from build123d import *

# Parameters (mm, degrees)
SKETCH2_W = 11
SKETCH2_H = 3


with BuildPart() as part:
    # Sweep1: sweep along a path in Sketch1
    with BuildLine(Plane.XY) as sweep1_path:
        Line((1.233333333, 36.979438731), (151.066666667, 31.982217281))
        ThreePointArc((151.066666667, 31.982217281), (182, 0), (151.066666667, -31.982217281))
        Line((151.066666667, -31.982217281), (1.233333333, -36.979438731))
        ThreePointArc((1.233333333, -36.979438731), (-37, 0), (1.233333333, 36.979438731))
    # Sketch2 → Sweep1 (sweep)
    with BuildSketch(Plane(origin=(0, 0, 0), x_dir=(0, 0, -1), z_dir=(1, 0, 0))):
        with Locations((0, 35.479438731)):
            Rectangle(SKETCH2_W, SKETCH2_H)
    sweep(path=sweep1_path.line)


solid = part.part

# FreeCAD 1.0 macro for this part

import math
import FreeCAD as App
import Part
import Sketcher

V = App.Vector
Q = App.Units.Quantity


def add_polygon(sketch, points):
    """Adds a closed chain of lines whose ends are joined by coincident constraints."""
    first, n = sketch.GeometryCount, len(points)
    for a, b in zip(points, points[1:] + points[:1]):
        sketch.addGeometry(Part.LineSegment(App.Vector(*a, 0), App.Vector(*b, 0)), False)
    for i in range(n):
        sketch.addConstraint(Sketcher.Constraint("Coincident", first + i, 2, first + (i + 1) % n, 1))

doc = App.newDocument("Part")
body = doc.addObject("PartDesign::Body", "Body")

sketch1 = body.newObject("Sketcher::SketchObject", "Sketch")
sketch1.AttachmentSupport = (doc.getObject("YZ_Plane"), [""])
sketch1.MapMode = "FlatFace"
add_polygon(sketch1, [(37, 5.5), (34, 5.5), (34, -5.5), (37, -5.5)])
sketch1.addConstraint(Sketcher.Constraint("Horizontal", 0))
sketch1.addConstraint(Sketcher.Constraint("Vertical", 1))
sketch1.addConstraint(Sketcher.Constraint("Horizontal", 2))
sketch1.addConstraint(Sketcher.Constraint("Vertical", 3))
sketch1.addConstraint(Sketcher.Constraint("DistanceX", 0, 2, 0, 1, Q("3 mm")))
sketch1.addConstraint(Sketcher.Constraint("DistanceY", 1, 2, 1, 1, Q("11 mm")))
sketch1.addConstraint(Sketcher.Constraint("DistanceY", -1, 1, 0, 2, Q("5.5 mm")))
sketch1.addConstraint(Sketcher.Constraint("DistanceX", -1, 1, 0, 2, Q("33.979439 mm")))

sketch2 = body.newObject("Sketcher::SketchObject", "Sketch001")
sketch2.AttachmentSupport = (doc.getObject("XY_Plane"), [""])
sketch2.MapMode = "FlatFace"
sketch2.addGeometry(Part.LineSegment(V(1, 37, 0), V(151, 32, 0)), False)
sketch2.addGeometry(Part.ArcOfCircle(Part.Circle(V(150, 0, 0), V(0, 0, 1), 32), math.radians(-88), math.radians(88)), False)
sketch2.addGeometry(Part.LineSegment(V(151, -32, 0), V(1, -37, 0)), False)
sketch2.addGeometry(Part.ArcOfCircle(Part.Circle(V(0, 0, 0), V(0, 0, 1), 37), math.radians(88), math.radians(272)), False)
sketch2.addConstraint(Sketcher.Constraint("Tangent", 0, 2, 1, 2))
sketch2.addConstraint(Sketcher.Constraint("Tangent", 1, 1, 2, 1))
sketch2.addConstraint(Sketcher.Constraint("Tangent", 2, 2, 3, 2))
sketch2.addConstraint(Sketcher.Constraint("Tangent", 3, 1, 0, 1))
sketch2.addConstraint(Sketcher.Constraint("Coincident", 3, 3, -1, 1))
sketch2.addConstraint(Sketcher.Constraint("PointOnObject", 1, 3, -1))
sketch2.addConstraint(Sketcher.Constraint("Radius", 1, Q("32 mm")))
sketch2.addConstraint(Sketcher.Constraint("Radius", 3, Q("37 mm")))
sketch2.addConstraint(Sketcher.Constraint("DistanceX", -1, 1, 1, 3, Q("150 mm")))
doc.recompute()

additivepipe = body.newObject("PartDesign::AdditivePipe", "AdditivePipe")
additivepipe.Profile = sketch1
additivepipe.Spine = (sketch2, ["Edge1", "Edge2", "Edge3", "Edge4"])

doc.recompute()
